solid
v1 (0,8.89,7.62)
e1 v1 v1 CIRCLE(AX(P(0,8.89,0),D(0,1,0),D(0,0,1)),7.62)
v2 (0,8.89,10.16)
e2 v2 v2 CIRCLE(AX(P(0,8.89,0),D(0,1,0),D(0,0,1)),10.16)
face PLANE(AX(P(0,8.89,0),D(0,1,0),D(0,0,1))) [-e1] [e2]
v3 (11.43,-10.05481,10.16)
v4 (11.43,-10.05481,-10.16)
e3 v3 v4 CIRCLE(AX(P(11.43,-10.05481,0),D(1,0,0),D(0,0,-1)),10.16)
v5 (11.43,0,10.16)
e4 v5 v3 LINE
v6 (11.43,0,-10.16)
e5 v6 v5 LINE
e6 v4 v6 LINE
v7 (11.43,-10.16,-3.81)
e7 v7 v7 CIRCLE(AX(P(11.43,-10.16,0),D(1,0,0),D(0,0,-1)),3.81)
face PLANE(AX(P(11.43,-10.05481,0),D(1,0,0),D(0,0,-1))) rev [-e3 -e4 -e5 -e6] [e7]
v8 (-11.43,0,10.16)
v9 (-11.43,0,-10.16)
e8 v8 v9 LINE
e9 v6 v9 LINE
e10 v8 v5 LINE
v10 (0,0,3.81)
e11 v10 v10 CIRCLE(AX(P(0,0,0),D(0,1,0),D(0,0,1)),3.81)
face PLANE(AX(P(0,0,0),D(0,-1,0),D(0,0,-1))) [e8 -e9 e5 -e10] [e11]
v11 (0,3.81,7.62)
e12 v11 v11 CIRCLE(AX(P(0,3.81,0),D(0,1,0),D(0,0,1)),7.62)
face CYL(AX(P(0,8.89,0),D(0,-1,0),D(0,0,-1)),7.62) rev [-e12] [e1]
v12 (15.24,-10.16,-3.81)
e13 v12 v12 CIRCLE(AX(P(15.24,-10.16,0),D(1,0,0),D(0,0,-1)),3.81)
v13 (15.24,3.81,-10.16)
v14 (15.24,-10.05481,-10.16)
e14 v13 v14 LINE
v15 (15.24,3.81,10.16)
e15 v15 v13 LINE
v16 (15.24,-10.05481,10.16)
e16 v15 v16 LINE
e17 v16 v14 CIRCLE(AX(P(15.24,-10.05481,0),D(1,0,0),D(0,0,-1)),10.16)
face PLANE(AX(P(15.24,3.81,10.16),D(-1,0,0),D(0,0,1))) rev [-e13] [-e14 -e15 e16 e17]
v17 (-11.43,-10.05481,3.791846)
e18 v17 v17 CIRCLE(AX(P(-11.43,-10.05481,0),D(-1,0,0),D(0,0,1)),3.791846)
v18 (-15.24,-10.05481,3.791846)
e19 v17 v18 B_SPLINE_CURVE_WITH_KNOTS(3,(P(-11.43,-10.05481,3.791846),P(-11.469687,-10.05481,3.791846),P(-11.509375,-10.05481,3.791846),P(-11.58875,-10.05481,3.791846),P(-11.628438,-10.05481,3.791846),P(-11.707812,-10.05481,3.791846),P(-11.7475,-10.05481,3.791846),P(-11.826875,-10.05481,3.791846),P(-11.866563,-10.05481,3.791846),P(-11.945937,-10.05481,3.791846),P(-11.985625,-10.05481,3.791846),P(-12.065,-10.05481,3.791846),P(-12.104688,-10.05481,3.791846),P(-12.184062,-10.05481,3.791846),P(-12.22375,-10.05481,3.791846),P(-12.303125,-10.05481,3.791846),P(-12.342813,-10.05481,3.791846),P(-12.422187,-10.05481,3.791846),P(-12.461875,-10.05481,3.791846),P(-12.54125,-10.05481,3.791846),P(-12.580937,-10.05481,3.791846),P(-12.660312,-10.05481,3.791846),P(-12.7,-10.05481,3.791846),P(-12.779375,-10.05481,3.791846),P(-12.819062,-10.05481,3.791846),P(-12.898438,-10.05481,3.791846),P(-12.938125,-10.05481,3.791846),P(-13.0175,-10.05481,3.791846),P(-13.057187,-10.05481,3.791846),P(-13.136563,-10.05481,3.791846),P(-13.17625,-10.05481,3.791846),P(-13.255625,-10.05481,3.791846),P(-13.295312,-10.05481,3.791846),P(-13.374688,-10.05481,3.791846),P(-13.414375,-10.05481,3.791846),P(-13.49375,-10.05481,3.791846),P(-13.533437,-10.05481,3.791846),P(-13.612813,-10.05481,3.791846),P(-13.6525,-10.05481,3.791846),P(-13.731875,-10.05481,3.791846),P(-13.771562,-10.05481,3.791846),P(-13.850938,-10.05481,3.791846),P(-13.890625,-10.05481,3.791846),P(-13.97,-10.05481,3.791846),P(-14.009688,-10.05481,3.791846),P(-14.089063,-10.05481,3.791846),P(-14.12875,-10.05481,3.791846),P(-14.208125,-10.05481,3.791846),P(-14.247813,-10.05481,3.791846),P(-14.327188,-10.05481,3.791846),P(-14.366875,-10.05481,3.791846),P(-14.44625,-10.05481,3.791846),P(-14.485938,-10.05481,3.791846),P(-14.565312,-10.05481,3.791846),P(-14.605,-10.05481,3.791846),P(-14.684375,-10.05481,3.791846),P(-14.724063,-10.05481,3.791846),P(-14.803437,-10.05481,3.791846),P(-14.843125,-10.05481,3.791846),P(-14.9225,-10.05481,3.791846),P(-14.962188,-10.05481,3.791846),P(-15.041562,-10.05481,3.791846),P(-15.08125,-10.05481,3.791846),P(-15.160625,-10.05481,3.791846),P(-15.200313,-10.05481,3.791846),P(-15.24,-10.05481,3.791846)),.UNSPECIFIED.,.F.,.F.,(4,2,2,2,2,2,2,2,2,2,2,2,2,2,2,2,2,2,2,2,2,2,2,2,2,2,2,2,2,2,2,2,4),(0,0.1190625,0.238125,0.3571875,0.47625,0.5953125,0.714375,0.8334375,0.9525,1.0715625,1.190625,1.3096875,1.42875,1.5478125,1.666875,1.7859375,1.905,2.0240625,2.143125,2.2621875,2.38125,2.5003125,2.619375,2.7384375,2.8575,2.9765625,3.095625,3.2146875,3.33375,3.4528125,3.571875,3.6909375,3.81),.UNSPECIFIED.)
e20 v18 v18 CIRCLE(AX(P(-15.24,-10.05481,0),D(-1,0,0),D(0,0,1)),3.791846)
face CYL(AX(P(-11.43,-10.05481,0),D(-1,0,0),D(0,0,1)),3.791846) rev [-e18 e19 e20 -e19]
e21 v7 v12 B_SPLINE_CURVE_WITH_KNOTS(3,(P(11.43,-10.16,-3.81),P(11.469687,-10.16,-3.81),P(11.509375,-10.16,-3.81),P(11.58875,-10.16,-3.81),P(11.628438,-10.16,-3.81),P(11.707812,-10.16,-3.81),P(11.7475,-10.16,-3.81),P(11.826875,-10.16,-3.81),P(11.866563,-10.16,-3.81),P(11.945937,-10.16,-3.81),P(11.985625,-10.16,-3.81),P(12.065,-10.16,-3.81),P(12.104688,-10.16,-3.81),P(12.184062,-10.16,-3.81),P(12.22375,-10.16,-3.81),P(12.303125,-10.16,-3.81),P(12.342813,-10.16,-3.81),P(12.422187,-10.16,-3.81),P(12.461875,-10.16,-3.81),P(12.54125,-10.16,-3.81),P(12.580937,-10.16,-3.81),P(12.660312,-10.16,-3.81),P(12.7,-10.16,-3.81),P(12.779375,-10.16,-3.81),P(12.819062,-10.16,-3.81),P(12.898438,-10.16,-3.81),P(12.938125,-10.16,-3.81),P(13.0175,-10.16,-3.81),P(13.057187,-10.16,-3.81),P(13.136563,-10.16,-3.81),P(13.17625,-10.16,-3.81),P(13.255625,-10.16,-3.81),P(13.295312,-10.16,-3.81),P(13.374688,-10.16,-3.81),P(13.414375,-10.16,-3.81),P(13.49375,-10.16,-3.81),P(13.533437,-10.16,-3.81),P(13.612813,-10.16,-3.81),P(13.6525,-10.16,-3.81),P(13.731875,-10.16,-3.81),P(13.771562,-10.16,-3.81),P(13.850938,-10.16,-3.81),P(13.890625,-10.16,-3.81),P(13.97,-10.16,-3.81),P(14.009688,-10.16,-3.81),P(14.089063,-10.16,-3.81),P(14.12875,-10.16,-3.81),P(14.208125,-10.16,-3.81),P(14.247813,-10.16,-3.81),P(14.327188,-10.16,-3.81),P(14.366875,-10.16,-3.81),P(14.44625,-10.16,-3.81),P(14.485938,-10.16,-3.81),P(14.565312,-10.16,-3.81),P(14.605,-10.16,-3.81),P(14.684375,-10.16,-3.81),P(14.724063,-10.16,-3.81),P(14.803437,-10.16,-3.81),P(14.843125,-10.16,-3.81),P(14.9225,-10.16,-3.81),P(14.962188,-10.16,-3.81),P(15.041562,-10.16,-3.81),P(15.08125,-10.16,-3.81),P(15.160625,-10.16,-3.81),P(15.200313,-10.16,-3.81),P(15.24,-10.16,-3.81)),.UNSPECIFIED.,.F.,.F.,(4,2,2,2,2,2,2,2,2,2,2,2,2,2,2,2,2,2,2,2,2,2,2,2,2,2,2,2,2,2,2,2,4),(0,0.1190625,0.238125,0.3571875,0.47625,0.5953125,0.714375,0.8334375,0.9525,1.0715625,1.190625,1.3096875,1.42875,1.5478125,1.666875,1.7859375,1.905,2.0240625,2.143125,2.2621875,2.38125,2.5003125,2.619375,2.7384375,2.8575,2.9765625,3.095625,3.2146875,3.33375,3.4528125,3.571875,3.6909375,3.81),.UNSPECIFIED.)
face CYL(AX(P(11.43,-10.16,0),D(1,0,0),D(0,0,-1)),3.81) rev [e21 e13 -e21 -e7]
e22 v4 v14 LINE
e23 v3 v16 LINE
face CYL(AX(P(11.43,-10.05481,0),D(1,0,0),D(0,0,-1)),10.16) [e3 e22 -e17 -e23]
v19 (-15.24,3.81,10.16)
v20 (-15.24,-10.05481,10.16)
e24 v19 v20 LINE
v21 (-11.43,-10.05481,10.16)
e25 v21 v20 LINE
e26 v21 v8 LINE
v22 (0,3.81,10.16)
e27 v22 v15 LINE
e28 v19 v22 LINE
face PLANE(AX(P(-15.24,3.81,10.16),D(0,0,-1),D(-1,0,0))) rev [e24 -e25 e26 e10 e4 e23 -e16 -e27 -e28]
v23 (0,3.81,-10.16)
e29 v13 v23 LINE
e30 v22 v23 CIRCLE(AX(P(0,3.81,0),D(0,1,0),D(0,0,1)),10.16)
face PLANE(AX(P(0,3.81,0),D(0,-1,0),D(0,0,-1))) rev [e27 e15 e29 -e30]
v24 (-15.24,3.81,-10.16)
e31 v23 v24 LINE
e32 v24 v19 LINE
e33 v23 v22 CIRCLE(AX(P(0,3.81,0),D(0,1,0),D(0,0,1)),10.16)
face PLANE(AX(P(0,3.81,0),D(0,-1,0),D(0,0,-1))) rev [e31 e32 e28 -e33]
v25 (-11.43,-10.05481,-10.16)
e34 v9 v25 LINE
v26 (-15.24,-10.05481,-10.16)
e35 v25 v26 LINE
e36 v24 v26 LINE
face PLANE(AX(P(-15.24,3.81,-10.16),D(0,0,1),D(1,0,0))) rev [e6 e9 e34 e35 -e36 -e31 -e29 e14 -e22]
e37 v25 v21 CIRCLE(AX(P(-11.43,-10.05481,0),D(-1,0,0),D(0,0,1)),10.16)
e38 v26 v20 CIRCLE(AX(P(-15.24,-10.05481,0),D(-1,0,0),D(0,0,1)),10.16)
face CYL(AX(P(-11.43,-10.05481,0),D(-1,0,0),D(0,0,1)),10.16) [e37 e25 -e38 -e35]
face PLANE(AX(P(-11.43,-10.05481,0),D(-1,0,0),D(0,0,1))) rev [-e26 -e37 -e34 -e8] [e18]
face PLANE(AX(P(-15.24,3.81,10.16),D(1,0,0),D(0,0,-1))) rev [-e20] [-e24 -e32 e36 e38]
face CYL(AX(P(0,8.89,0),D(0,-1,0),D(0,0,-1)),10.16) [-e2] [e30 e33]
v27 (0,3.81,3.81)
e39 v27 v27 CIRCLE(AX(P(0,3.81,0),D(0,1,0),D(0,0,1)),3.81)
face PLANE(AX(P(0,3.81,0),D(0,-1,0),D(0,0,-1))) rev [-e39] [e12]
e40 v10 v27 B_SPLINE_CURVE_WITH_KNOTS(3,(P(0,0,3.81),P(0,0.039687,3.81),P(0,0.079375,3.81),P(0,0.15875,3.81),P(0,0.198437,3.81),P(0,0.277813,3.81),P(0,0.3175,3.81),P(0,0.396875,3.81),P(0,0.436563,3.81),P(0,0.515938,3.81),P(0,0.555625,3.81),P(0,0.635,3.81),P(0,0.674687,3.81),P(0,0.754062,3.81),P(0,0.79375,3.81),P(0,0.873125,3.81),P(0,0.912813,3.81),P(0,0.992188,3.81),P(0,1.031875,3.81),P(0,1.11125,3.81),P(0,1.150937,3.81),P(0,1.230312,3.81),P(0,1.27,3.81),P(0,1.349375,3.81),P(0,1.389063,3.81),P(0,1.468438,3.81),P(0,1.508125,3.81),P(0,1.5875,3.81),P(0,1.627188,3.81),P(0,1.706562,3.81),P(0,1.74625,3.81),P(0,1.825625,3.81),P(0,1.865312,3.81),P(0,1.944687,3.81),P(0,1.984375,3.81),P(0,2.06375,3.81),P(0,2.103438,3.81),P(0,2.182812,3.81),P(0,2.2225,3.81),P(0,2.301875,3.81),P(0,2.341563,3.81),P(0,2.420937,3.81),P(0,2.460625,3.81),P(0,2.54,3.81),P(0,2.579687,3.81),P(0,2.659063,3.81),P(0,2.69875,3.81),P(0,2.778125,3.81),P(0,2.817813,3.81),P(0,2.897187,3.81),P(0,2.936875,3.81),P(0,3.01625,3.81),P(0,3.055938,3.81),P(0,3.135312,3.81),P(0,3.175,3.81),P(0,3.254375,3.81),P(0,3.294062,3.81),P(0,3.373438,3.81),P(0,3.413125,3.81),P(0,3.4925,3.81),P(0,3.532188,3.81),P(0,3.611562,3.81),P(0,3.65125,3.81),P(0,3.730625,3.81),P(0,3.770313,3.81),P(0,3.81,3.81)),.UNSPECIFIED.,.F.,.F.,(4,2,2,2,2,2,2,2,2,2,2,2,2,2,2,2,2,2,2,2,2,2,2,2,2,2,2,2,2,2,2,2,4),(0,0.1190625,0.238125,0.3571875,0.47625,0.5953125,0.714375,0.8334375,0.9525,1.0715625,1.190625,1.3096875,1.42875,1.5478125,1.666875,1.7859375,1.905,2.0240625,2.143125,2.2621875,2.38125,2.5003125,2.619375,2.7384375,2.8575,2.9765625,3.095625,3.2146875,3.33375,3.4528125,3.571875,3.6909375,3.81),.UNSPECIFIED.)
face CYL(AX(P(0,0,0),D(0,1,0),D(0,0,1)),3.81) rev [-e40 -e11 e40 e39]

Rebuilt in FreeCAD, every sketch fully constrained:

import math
import FreeCAD as App
import Part
import Sketcher
from FreeCAD import Vector
Q = App.Units.Quantity

doc = App.newDocument("Part")
body = doc.addObject("PartDesign::Body", "Body")

sketch1 = body.newObject("Sketcher::SketchObject", "Sketch")
sketch1.AttachmentSupport = (doc.getObject("XZ_Plane"), [""])
sketch1.MapMode = "FlatFace"
sketch1.addGeometry([
    Part.LineSegment(Vector(-15, -10, 0), Vector(-15, 10, 0)),
    Part.LineSegment(Vector(-15, 10, 0), Vector(15, 10, 0)),
    Part.LineSegment(Vector(15, 10, 0), Vector(15, -10, 0)),
    Part.LineSegment(Vector(15, -10, 0), Vector(-15, -10, 0)),
], False)
sketch1.addConstraint([
    Sketcher.Constraint("Coincident", 0, 2, 1, 1),
    Sketcher.Constraint("Coincident", 1, 2, 2, 1),
    Sketcher.Constraint("Coincident", 2, 2, 3, 1),
    Sketcher.Constraint("Coincident", 3, 2, 0, 1),
    Sketcher.Constraint("Vertical", 0),
    Sketcher.Constraint("Horizontal", 1),
    Sketcher.Constraint("Vertical", 2),
    Sketcher.Constraint("Horizontal", 3),
    Sketcher.Constraint("Symmetric", 0, 2, 2, 2, -1, 1),
    Sketcher.Constraint("DistanceX", 1, 1, 1, 2, Q("1.2 in")),
    Sketcher.Constraint("DistanceY", 0, 1, 0, 2, Q("0.8 in")),
])
pad1 = body.newObject("PartDesign::Pad", "Pad")
pad1.Profile = sketch1
pad1.Length = Q("0.15 in")
pad1.Reversed = True

sketch2 = body.newObject("Sketcher::SketchObject", "Sketch001")
sketch2.AttachmentSupport = (doc.getObject("XZ_Plane"), [""])
sketch2.MapMode = "FlatFace"
sketch2.AttachmentOffset = App.Placement(Vector(0, 0, -0.15 * 25.4), App.Rotation())
sketch2.addGeometry([
    Part.Circle(Vector(0, 0, 0), Vector(0, 0, 1), 10),
    Part.Circle(Vector(0, 0, 0), Vector(0, 0, 1), 8),
], False)
sketch2.addConstraint([
    Sketcher.Constraint("Coincident", 0, 3, -1, 1),
    Sketcher.Constraint("Coincident", 1, 3, -1, 1),
    Sketcher.Constraint("Diameter", 0, Q("0.8 in")),
    Sketcher.Constraint("Diameter", 1, Q("0.6 in")),
])
pad2 = body.newObject("PartDesign::Pad", "Pad001")
pad2.Profile = sketch2
pad2.Length = Q("0.2 in")
pad2.Reversed = True

sketch3 = body.newObject("Sketcher::SketchObject", "Sketch002")
sketch3.AttachmentSupport = (doc.getObject("XZ_Plane"), [""])
sketch3.MapMode = "FlatFace"
sketch3.AttachmentOffset = App.Placement(Vector(0, 0, -0.15 * 25.4), App.Rotation())
sketch3.addGeometry(Part.Circle(Vector(0, 0, 0), Vector(0, 0, 1), 3.8), False)
sketch3.addConstraint([
    Sketcher.Constraint("Coincident", 0, 3, -1, 1),
    Sketcher.Constraint("Diameter", 0, Q("0.3 in")),
])
pocket1 = body.newObject("PartDesign::Pocket", "Pocket")
pocket1.Profile = sketch3
pocket1.Type = "ThroughAll"
pocket1.Reversed = True

sketch4 = body.newObject("Sketcher::SketchObject", "Sketch003")
sketch4.AttachmentSupport = (doc.getObject("YZ_Plane"), [""])
sketch4.MapMode = "FlatFace"
sketch4.AttachmentOffset = App.Placement(Vector(0, 0, 0.6 * 25.4), App.Rotation())
sketch4.addGeometry([
    Part.LineSegment(Vector(4, 10, 0), Vector(-10, 10, 0)),
    Part.ArcOfCircle(Part.Circle(Vector(-10, 0, 0), Vector(0, 0, 1), 10), math.radians(90), math.radians(270)),
    Part.LineSegment(Vector(-10, -10, 0), Vector(4, -10, 0)),
    Part.LineSegment(Vector(4, -10, 0), Vector(4, 10, 0)),
], False)
sketch4.addConstraint([
    Sketcher.Constraint("Tangent", 0, 2, 1, 1),
    Sketcher.Constraint("Tangent", 1, 2, 2, 1),
    Sketcher.Constraint("Coincident", 2, 2, 3, 1),
    Sketcher.Constraint("Coincident", 3, 2, 0, 1),
    Sketcher.Constraint("Horizontal", 0),
    Sketcher.Constraint("Horizontal", 2),
    Sketcher.Constraint("Vertical", 3),
    Sketcher.Constraint("PointOnObject", 1, 3, -1),
    Sketcher.Constraint("Radius", 1, Q("0.4 in")),
    Sketcher.Constraint("DistanceX", -1, 1, 2, 2, Q("0.15 in")),
    Sketcher.Constraint("DistanceX", 0, 2, 0, 1, 13.86481),
])
pad3 = body.newObject("PartDesign::Pad", "Pad002")
pad3.Profile = sketch4
pad3.Length = Q("0.15 in")
pad3.Reversed = True

sketch5 = body.newObject("Sketcher::SketchObject", "Sketch004")
sketch5.AttachmentSupport = (doc.getObject("YZ_Plane"), [""])
sketch5.MapMode = "FlatFace"
sketch5.AttachmentOffset = App.Placement(Vector(0, 0, 0.6 * 25.4), App.Rotation())
sketch5.addGeometry(Part.Circle(Vector(-10.2, 0, 0), Vector(0, 0, 1), 3.8), False)
sketch5.addConstraint([
    Sketcher.Constraint("PointOnObject", 0, 3, -1),
    Sketcher.Constraint("Diameter", 0, Q("0.3 in")),
    Sketcher.Constraint("DistanceX", 0, 3, -1, 1, Q("0.4 in")),
])
pocket2 = body.newObject("PartDesign::Pocket", "Pocket001")
pocket2.Profile = sketch5
pocket2.Length = Q("0.15 in")

sketch6 = body.newObject("Sketcher::SketchObject", "Sketch005")
sketch6.AttachmentSupport = (doc.getObject("YZ_Plane"), [""])
sketch6.MapMode = "FlatFace"
sketch6.AttachmentOffset = App.Placement(Vector(0, 0, -0.45 * 25.4), App.Rotation())
sketch6.addGeometry([
    Part.LineSegment(Vector(3.8, -10.2, 0), Vector(-10.1, -10.2, 0)),
    Part.ArcOfCircle(Part.Circle(Vector(-10.1, 0, 0), Vector(0, 0, 1), 10.2), math.radians(90), math.radians(270)),
    Part.LineSegment(Vector(-10.1, 10.2, 0), Vector(3.8, 10.2, 0)),
    Part.LineSegment(Vector(3.8, 10.2, 0), Vector(3.8, -10.2, 0)),
    Part.Circle(Vector(-10.1, 0, 0), Vector(0, 0, 1), 3.8),
], False)
sketch6.addConstraint([
    Sketcher.Constraint("Tangent", 0, 2, 1, 2),
    Sketcher.Constraint("Tangent", 1, 1, 2, 1),
    Sketcher.Constraint("Coincident", 2, 2, 3, 1),
    Sketcher.Constraint("Coincident", 3, 2, 0, 1),
    Sketcher.Constraint("Horizontal", 0),
    Sketcher.Constraint("Horizontal", 2),
    Sketcher.Constraint("Vertical", 3),
    Sketcher.Constraint("Coincident", 4, 3, 1, 3),
    Sketcher.Constraint("PointOnObject", 1, 3, -1),
    Sketcher.Constraint("Radius", 1, Q("0.4 in")),
    Sketcher.Constraint("DistanceX", -1, 1, 2, 2, Q("0.15 in")),
    Sketcher.Constraint("Diameter", 4, 7.583691),
    Sketcher.Constraint("DistanceX", 0, 2, 0, 1, 13.86481),
])
pad4 = body.newObject("PartDesign::Pad", "Pad003")
pad4.Profile = sketch6
pad4.Length = Q("0.15 in")
pad4.Reversed = True

doc.recompute()
